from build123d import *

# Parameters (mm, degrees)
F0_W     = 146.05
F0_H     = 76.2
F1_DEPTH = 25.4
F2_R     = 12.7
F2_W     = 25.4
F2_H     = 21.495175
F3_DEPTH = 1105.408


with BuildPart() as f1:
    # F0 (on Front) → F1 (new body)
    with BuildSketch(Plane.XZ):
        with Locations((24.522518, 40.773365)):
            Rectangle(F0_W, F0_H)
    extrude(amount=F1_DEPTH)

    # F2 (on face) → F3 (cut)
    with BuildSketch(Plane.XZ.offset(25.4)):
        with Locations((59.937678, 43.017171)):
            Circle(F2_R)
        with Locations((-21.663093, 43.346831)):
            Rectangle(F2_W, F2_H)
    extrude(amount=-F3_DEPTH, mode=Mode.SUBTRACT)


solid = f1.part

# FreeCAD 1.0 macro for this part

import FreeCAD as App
import Part
import Sketcher

V = App.Vector
Q = App.Units.Quantity


def add_polygon(sketch, points):
    """Adds a closed chain of lines whose ends are joined by coincident constraints."""
    first, n = sketch.GeometryCount, len(points)
    for a, b in zip(points, points[1:] + points[:1]):
        sketch.addGeometry(Part.LineSegment(App.Vector(*a, 0), App.Vector(*b, 0)), False)
    for i in range(n):
        sketch.addConstraint(Sketcher.Constraint("Coincident", first + i, 2, first + (i + 1) % n, 1))

doc = App.newDocument("Part")
body = doc.addObject("PartDesign::Body", "Body")

# Sketch on XZ plane
sketch1 = body.newObject("Sketcher::SketchObject", "Sketch")
sketch1.AttachmentSupport = (doc.getObject("XZ_Plane"), [""])
sketch1.MapMode = "FlatFace"
add_polygon(sketch1, [(-48.502482, 78.873365), (-48.502482, 2.673365), (97.547518, 2.673365), (97.547518, 78.873365)])  # lines 0-3
sketch1.addConstraint(Sketcher.Constraint("Vertical", 0))
sketch1.addConstraint(Sketcher.Constraint("Horizontal", 1))
sketch1.addConstraint(Sketcher.Constraint("Vertical", 2))
sketch1.addConstraint(Sketcher.Constraint("Horizontal", 3))
sketch1.addConstraint(Sketcher.Constraint("DistanceY", 0, 2, 0, 1, Q("3 in")))
sketch1.addConstraint(Sketcher.Constraint("DistanceX", 1, 1, 1, 2, Q("5.75 in")))
sketch1.addConstraint(Sketcher.Constraint("DistanceX", 0, 2, -1, 1, 48.502482))
sketch1.addConstraint(Sketcher.Constraint("DistanceY", -1, 1, 0, 2, 2.673365))
pad1 = body.newObject("PartDesign::Pad", "Pad")
pad1.Profile = sketch1
pad1.Length = Q("1 in")

# Sketch on XZ plane
sketch2 = body.newObject("Sketcher::SketchObject", "Sketch001")
sketch2.AttachmentSupport = (doc.getObject("XZ_Plane"), [""])
sketch2.MapMode = "FlatFace"
sketch2.AttachmentOffset = App.Placement(V(0, 0, 1 * 25.4), App.Rotation())
sketch2.addGeometry(Part.Circle(V(59.937678, 43.017171, 0), V(0, 0, 1), 12.7), False)  # 0
add_polygon(sketch2, [(-34.363093, 54.094419), (-34.363093, 32.599244), (-8.963093, 32.599244), (-8.963093, 54.094419)])  # lines 1-4
sketch2.addConstraint(Sketcher.Constraint("Vertical", 1))
sketch2.addConstraint(Sketcher.Constraint("Horizontal", 2))
sketch2.addConstraint(Sketcher.Constraint("Vertical", 3))
sketch2.addConstraint(Sketcher.Constraint("Horizontal", 4))
sketch2.addConstraint(Sketcher.Constraint("Diameter", 0, Q("1 in")))
sketch2.addConstraint(Sketcher.Constraint("DistanceX", 2, 1, 2, 2, Q("1 in")))
sketch2.addConstraint(Sketcher.Constraint("DistanceY", 1, 2, 1, 1, 21.495175))
sketch2.addConstraint(Sketcher.Constraint("DistanceY", -1, 1, 0, 3, 43.017171))
sketch2.addConstraint(Sketcher.Constraint("DistanceY", -1, 1, 3, 2, 54.094419))
sketch2.addConstraint(Sketcher.Constraint("DistanceX", 1, 2, 0, 3, 94.300771))
sketch2.addConstraint(Sketcher.Constraint("DistanceX", -1, 1, 0, 3, 59.937678))
pocket1 = body.newObject("PartDesign::Pocket", "Pocket")
pocket1.Profile = sketch2
pocket1.Length = Q("43.52 in")

doc.recompute()
